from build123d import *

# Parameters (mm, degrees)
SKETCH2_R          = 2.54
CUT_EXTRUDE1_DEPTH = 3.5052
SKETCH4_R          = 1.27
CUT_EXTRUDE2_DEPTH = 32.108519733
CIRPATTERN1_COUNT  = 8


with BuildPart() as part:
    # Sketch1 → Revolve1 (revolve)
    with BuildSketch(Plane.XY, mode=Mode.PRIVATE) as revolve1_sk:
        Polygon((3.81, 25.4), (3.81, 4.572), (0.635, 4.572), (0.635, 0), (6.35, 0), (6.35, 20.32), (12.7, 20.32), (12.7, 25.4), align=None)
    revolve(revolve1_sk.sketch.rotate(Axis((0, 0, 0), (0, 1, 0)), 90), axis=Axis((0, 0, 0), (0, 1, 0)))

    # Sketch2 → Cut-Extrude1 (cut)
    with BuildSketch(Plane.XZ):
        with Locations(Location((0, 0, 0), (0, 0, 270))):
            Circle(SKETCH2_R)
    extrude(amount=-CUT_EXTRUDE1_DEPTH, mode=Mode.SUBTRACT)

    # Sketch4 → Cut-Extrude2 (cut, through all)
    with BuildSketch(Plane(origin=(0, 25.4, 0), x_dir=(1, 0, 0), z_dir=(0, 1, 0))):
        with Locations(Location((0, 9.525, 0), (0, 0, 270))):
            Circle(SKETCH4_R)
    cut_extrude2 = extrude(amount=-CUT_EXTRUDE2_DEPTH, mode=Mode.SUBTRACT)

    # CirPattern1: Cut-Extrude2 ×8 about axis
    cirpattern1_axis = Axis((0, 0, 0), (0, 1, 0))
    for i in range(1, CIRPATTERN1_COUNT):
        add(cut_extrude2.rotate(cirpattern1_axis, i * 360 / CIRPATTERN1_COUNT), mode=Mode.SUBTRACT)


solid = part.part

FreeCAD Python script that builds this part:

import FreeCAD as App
import Part
import Sketcher
Q = App.Units.Quantity

doc = App.newDocument("Part")
body = doc.addObject("PartDesign::Body", "Body")

sketch1 = body.newObject("Sketcher::SketchObject", "Sketch")
sketch1.AttachmentSupport = (doc.getObject("XY_Plane"), [""])
sketch1.MapMode = "FlatFace"
sketch1.addGeometry(Part.LineSegment(App.Vector(3.8, 25.4, 0), App.Vector(3.8, 4.6, 0)), False)
sketch1.addGeometry(Part.LineSegment(App.Vector(3.8, 4.6, 0), App.Vector(0.6, 4.6, 0)), False)
sketch1.addGeometry(Part.LineSegment(App.Vector(0.6, 4.6, 0), App.Vector(0.6, 0, 0)), False)
sketch1.addGeometry(Part.LineSegment(App.Vector(0.6, 0, 0), App.Vector(6.3, 0, 0)), False)
sketch1.addGeometry(Part.LineSegment(App.Vector(6.3, 0, 0), App.Vector(6.3, 20.3, 0)), False)
sketch1.addGeometry(Part.LineSegment(App.Vector(6.3, 20.3, 0), App.Vector(12.7, 20.3, 0)), False)
sketch1.addGeometry(Part.LineSegment(App.Vector(12.7, 20.3, 0), App.Vector(12.7, 25.4, 0)), False)
sketch1.addGeometry(Part.LineSegment(App.Vector(12.7, 25.4, 0), App.Vector(3.8, 25.4, 0)), False)
sketch1.addConstraint(Sketcher.Constraint("Coincident", 0, 2, 1, 1))
sketch1.addConstraint(Sketcher.Constraint("Coincident", 1, 2, 2, 1))
sketch1.addConstraint(Sketcher.Constraint("Coincident", 2, 2, 3, 1))
sketch1.addConstraint(Sketcher.Constraint("Coincident", 3, 2, 4, 1))
sketch1.addConstraint(Sketcher.Constraint("Coincident", 4, 2, 5, 1))
sketch1.addConstraint(Sketcher.Constraint("Coincident", 5, 2, 6, 1))
sketch1.addConstraint(Sketcher.Constraint("Coincident", 6, 2, 7, 1))
sketch1.addConstraint(Sketcher.Constraint("Coincident", 7, 2, 0, 1))
sketch1.addConstraint(Sketcher.Constraint("Vertical", 0))
sketch1.addConstraint(Sketcher.Constraint("Horizontal", 1))
sketch1.addConstraint(Sketcher.Constraint("Vertical", 2))
sketch1.addConstraint(Sketcher.Constraint("Horizontal", 3))
sketch1.addConstraint(Sketcher.Constraint("Vertical", 4))
sketch1.addConstraint(Sketcher.Constraint("Horizontal", 5))
sketch1.addConstraint(Sketcher.Constraint("Vertical", 6))
sketch1.addConstraint(Sketcher.Constraint("Horizontal", 7))
sketch1.addConstraint(Sketcher.Constraint("PointOnObject", 2, 2, -1))
sketch1.addConstraint(Sketcher.Constraint("DistanceY", 4, 1, 4, 2, Q("0.8 in")))
sketch1.addConstraint(Sketcher.Constraint("DistanceY", 6, 1, 6, 2, Q("0.2 in")))
sketch1.addConstraint(Sketcher.Constraint("DistanceX", 5, 1, 5, 2, Q("0.25 in")))
sketch1.addConstraint(Sketcher.Constraint("DistanceX", 7, 2, 7, 1, Q("0.35 in")))
sketch1.addConstraint(Sketcher.Constraint("DistanceY", 0, 2, 0, 1, Q("0.82 in")))
sketch1.addConstraint(Sketcher.Constraint("DistanceX", -1, 1, 5, 2, Q("0.5 in")))
sketch1.addConstraint(Sketcher.Constraint("DistanceX", 1, 2, 1, 1, Q("0.125 in")))
revolution = body.newObject("PartDesign::Revolution", "Revolution")
revolution.Profile = sketch1
revolution.ReferenceAxis = (sketch1, ["V_Axis"])
revolution.Angle = 360

sketch2 = body.newObject("Sketcher::SketchObject", "Sketch001")
sketch2.AttachmentSupport = (doc.getObject("XZ_Plane"), [""])
sketch2.MapMode = "FlatFace"
sketch2.addGeometry(Part.Circle(App.Vector(0, 0, 0), App.Vector(0, 0, 1), 2.5), False)
sketch2.addConstraint(Sketcher.Constraint("Coincident", 0, 3, -1, 1))
sketch2.addConstraint(Sketcher.Constraint("Diameter", 0, Q("0.2 in")))
pocket1 = body.newObject("PartDesign::Pocket", "Pocket")
pocket1.Profile = sketch2
pocket1.Length = Q("0.138 in")

sketch3 = body.newObject("Sketcher::SketchObject", "Sketch002")
sketch3.AttachmentSupport = (doc.getObject("XZ_Plane"), [""])
sketch3.MapMode = "FlatFace"
sketch3.AttachmentOffset = App.Placement(App.Vector(0, 0, -1 * 25.4), App.Rotation())
sketch3.addGeometry(Part.Circle(App.Vector(0, -9.5, 0), App.Vector(0, 0, 1), 1.3), False)
sketch3.addConstraint(Sketcher.Constraint("PointOnObject", 0, 3, -2))
sketch3.addConstraint(Sketcher.Constraint("Diameter", 0, Q("0.1 in")))
sketch3.addConstraint(Sketcher.Constraint("DistanceY", 0, 3, -1, 1, Q("0.375 in")))
pocket2 = body.newObject("PartDesign::Pocket", "Pocket001")
pocket2.Profile = sketch3
pocket2.Type = "ThroughAll"
pocket2.Reversed = True
doc.recompute()

polarpattern = body.newObject("PartDesign::PolarPattern", "PolarPattern")
polarpattern.Originals = [pocket2]
polarpattern.Axis = (doc.getObject("Y_Axis"), [""])
polarpattern.Angle = 360
polarpattern.Occurrences = 8
body.Tip = polarpattern

doc.recompute()
